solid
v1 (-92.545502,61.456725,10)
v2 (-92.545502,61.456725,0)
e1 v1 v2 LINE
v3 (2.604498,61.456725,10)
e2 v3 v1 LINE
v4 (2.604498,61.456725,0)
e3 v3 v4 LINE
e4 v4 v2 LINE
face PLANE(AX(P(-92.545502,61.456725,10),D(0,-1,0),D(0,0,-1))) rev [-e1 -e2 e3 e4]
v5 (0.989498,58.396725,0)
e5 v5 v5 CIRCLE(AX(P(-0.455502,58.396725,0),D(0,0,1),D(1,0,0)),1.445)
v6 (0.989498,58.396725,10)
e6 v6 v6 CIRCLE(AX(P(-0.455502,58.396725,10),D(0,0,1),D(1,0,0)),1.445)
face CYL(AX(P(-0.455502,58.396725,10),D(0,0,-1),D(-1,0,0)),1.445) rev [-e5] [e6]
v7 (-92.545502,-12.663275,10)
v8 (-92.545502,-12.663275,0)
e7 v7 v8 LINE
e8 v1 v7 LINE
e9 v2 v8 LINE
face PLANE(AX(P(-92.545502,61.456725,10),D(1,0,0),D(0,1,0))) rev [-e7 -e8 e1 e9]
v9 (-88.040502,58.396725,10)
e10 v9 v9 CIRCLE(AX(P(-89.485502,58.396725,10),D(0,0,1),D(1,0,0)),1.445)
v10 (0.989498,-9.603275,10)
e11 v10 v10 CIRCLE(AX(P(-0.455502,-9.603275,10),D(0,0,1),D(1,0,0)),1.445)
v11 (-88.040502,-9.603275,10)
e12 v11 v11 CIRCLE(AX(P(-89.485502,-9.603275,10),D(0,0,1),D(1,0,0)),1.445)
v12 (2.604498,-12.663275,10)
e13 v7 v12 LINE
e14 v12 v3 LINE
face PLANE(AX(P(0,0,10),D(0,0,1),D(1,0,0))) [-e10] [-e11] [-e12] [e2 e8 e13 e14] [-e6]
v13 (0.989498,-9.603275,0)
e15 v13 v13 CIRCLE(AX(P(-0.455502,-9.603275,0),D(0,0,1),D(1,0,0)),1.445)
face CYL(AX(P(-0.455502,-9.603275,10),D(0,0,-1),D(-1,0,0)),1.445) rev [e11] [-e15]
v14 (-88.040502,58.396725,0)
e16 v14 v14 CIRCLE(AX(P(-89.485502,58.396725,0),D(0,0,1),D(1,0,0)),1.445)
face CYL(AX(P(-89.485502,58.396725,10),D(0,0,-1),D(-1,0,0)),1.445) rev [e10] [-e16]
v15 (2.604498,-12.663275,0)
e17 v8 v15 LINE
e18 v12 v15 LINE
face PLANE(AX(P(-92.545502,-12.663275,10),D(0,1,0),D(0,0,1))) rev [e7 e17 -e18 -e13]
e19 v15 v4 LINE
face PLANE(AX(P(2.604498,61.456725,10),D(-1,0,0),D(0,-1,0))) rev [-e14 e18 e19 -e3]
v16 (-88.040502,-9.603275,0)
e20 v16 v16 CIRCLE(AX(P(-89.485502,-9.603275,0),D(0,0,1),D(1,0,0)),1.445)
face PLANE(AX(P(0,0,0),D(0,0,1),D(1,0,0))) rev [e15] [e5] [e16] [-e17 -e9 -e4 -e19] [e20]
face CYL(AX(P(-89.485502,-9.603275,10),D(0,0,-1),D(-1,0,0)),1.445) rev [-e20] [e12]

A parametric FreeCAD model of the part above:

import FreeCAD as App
import Part
import Sketcher
from FreeCAD import Vector


def add_polygon(sketch, points):
    """Adds a closed chain of lines whose ends are joined by coincident constraints."""
    first, n = sketch.GeometryCount, len(points)
    for a, b in zip(points, points[1:] + points[:1]):
        sketch.addGeometry(Part.LineSegment(App.Vector(*a, 0), App.Vector(*b, 0)), False)
    for i in range(n):
        sketch.addConstraint(Sketcher.Constraint("Coincident", first + i, 2, first + (i + 1) % n, 1))

doc = App.newDocument("Part")
body = doc.addObject("PartDesign::Body", "Body")

# Sketch on XY plane
sketch1 = body.newObject("Sketcher::SketchObject", "Sketch")
sketch1.AttachmentSupport = (doc.getObject("XY_Plane"), [""])
sketch1.MapMode = "FlatFace"
add_polygon(sketch1, [(-92.5, 61.5), (-92.5, -12.7), (2.6, -12.7), (2.6, 61.5)])  # lines 0-3
sketch1.addGeometry(Part.Circle(Vector(-89.5, -9.6, 0), Vector(0, 0, 1), 1.4), False)  # 4
sketch1.addGeometry(Part.Circle(Vector(-0.5, -9.6, 0), Vector(0, 0, 1), 1.4), False)  # 5
sketch1.addGeometry(Part.Circle(Vector(-89.5, 58.4, 0), Vector(0, 0, 1), 1.4), False)  # 6
sketch1.addGeometry(Part.Circle(Vector(-0.5, 58.4, 0), Vector(0, 0, 1), 1.4), False)  # 7
sketch1.addConstraint([
    Sketcher.Constraint("Vertical", 0),
    Sketcher.Constraint("Horizontal", 1),
    Sketcher.Constraint("Vertical", 2),
    Sketcher.Constraint("Horizontal", 3),
    Sketcher.Constraint("Equal", 4, 5),
    Sketcher.Constraint("Equal", 5, 6),
    Sketcher.Constraint("Equal", 6, 7),
    Sketcher.Constraint("Horizontal", 4, 3, 5, 3),
    Sketcher.Constraint("Horizontal", 6, 3, 7, 3),
    Sketcher.Constraint("Vertical", 4, 3, 6, 3),
    Sketcher.Constraint("Vertical", 5, 3, 7, 3),
    Sketcher.Constraint("Diameter", 4, 2.89),
    Sketcher.Constraint("DistanceY", 4, 3, 6, 3, 68.0),
    Sketcher.Constraint("DistanceX", 1, 1, 1, 2, 95.15),
    Sketcher.Constraint("DistanceY", 0, 2, 0, 1, 74.12),
    Sketcher.Constraint("DistanceX", 4, 3, 5, 3, 89.03),
    Sketcher.Constraint("DistanceX", 0, 2, 4, 3, 3.06),
    Sketcher.Constraint("DistanceY", 0, 2, 4, 3, 3.06),
    Sketcher.Constraint("DistanceX", 4, 3, -1, 1, 89.485502),
    Sketcher.Constraint("DistanceY", 4, 3, -1, 1, 9.603275),
])
pad1 = body.newObject("PartDesign::Pad", "Pad")
pad1.Profile = sketch1
pad1.Length = 10

doc.recompute()
